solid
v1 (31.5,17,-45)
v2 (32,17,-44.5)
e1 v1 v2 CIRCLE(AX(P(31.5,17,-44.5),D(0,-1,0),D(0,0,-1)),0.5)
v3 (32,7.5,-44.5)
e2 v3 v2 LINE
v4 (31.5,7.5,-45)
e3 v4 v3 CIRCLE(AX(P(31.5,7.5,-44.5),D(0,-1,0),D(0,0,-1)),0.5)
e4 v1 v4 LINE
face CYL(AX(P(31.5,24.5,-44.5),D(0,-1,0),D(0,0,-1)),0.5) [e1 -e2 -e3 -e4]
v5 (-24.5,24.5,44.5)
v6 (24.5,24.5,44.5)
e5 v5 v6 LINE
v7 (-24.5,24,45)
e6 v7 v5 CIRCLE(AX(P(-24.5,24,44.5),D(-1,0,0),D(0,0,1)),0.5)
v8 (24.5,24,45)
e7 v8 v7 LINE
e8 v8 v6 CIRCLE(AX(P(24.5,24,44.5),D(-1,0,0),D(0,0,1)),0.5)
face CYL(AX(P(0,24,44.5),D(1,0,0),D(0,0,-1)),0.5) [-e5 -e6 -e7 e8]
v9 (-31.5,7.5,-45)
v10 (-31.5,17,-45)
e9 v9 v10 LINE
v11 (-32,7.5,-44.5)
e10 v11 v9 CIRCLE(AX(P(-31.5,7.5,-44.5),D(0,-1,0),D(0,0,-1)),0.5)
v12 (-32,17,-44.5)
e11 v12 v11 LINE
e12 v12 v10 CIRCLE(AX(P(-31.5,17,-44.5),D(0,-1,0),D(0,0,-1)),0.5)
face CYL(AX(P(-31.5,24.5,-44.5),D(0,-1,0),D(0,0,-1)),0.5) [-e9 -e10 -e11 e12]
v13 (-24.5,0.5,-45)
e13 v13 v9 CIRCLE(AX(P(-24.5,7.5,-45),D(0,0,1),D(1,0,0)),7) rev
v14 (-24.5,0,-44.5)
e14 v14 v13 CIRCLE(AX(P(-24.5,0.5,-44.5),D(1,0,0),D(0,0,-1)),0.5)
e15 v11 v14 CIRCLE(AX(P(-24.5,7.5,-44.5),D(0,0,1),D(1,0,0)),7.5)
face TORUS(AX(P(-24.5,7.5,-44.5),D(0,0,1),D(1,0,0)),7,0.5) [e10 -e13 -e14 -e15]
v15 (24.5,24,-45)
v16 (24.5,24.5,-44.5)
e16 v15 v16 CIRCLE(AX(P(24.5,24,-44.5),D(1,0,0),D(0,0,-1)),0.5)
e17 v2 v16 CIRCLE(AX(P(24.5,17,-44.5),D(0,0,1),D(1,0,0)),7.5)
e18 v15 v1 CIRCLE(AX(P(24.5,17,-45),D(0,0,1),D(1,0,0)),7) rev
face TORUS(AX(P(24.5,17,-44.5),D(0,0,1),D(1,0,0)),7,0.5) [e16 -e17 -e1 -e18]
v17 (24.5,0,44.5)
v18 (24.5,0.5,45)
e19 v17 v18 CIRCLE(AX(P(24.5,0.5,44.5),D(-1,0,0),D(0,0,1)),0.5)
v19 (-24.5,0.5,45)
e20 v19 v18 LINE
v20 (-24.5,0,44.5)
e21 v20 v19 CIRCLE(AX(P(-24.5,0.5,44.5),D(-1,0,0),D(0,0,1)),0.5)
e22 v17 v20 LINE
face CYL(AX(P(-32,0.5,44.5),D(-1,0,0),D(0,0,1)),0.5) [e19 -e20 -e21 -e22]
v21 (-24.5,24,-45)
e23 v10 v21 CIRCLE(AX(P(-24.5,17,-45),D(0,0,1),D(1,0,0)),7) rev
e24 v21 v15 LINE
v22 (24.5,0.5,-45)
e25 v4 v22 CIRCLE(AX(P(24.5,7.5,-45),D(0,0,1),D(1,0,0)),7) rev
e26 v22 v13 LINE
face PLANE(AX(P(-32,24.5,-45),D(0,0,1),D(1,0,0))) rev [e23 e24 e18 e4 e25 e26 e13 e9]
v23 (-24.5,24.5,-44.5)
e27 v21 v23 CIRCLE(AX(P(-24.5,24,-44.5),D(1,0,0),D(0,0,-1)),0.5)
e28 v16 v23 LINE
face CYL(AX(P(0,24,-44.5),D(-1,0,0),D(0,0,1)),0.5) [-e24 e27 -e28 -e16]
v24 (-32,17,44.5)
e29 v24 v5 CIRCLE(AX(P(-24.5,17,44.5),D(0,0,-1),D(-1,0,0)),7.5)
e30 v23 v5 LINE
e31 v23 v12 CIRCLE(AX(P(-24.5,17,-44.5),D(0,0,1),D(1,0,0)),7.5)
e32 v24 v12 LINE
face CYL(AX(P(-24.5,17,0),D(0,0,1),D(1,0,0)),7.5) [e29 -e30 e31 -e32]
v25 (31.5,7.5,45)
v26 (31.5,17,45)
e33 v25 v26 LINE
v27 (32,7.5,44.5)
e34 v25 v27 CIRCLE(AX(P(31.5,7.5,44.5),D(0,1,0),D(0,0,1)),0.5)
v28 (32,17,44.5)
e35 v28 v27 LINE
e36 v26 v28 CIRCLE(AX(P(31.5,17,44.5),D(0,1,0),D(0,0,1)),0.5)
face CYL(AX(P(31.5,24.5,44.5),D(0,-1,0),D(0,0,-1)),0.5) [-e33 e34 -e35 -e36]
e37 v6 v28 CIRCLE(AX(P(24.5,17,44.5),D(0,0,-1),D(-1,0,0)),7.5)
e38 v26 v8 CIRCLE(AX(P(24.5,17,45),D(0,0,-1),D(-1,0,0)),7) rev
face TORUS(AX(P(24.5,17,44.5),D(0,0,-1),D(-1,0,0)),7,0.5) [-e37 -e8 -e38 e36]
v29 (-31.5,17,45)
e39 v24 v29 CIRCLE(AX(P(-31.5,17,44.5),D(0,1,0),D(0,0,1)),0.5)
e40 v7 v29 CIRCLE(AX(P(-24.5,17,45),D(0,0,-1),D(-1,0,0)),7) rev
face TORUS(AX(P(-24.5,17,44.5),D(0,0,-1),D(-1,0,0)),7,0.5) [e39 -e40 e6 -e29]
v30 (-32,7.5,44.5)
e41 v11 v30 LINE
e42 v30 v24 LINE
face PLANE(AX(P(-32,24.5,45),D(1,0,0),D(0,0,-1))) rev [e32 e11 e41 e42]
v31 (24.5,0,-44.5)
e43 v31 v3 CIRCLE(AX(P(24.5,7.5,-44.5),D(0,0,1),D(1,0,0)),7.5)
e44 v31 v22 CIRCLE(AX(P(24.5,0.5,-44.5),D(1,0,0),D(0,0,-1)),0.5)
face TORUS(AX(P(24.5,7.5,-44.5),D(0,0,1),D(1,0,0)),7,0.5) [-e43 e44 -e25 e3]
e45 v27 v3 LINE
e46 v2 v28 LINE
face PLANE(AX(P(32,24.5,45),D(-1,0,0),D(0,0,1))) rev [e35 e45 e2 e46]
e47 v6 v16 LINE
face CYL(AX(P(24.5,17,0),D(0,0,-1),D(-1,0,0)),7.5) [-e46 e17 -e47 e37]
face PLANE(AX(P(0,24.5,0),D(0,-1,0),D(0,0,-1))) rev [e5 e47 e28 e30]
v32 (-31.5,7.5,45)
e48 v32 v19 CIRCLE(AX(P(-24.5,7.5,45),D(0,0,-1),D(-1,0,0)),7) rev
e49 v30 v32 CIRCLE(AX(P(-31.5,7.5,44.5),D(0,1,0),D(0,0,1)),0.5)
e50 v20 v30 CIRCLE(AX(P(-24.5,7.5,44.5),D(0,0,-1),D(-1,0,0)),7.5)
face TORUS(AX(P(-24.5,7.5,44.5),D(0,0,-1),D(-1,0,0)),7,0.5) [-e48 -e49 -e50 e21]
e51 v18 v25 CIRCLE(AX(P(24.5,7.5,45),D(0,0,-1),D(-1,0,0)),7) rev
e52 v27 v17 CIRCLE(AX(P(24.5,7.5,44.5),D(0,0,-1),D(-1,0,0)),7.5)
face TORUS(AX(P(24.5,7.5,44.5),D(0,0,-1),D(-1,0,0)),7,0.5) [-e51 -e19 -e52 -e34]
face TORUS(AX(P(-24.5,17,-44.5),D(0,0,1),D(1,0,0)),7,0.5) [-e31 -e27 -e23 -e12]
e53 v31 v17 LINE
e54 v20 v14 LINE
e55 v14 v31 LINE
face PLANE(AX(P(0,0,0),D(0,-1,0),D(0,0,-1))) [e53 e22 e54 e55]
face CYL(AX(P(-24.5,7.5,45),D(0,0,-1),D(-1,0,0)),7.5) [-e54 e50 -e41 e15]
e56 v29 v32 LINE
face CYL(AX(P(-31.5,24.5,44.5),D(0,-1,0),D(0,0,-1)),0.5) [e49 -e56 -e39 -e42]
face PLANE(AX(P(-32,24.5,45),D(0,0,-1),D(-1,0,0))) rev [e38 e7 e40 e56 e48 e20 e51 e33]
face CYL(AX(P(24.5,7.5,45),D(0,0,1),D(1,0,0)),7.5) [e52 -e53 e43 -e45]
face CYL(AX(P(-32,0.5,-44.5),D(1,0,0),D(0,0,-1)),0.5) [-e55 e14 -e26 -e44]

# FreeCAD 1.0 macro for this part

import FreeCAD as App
import Part
import Sketcher

V = App.Vector
Q = App.Units.Quantity


def edges_at(feature, points):
    """Names of the edges that pass closest to the given points."""
    edges = feature.Shape.Edges
    near = lambda p: min(range(len(edges)), key=lambda i: edges[i].distToShape(Part.Vertex(*p))[0])
    return sorted({f"Edge{near(p) + 1}" for p in points})

doc = App.newDocument("Part")
body = doc.addObject("PartDesign::Body", "Body")

# Sketch on XZ plane
sketch1 = body.newObject("Sketcher::SketchObject", "Sketch")
sketch1.AttachmentSupport = (doc.getObject("XZ_Plane"), [""])
sketch1.MapMode = "FlatFace"
sketch1.addGeometry(Part.LineSegment(V(-32, -45, 0), V(-32, 45, 0)), False)
sketch1.addGeometry(Part.LineSegment(V(-32, 45, 0), V(32, 45, 0)), False)
sketch1.addGeometry(Part.LineSegment(V(32, 45, 0), V(32, -45, 0)), False)
sketch1.addGeometry(Part.LineSegment(V(32, -45, 0), V(-32, -45, 0)), False)
sketch1.addConstraint(Sketcher.Constraint("Coincident", 0, 2, 1, 1))
sketch1.addConstraint(Sketcher.Constraint("Coincident", 1, 2, 2, 1))
sketch1.addConstraint(Sketcher.Constraint("Coincident", 2, 2, 3, 1))
sketch1.addConstraint(Sketcher.Constraint("Coincident", 3, 2, 0, 1))
sketch1.addConstraint(Sketcher.Constraint("Vertical", 0))
sketch1.addConstraint(Sketcher.Constraint("Horizontal", 1))
sketch1.addConstraint(Sketcher.Constraint("Vertical", 2))
sketch1.addConstraint(Sketcher.Constraint("Horizontal", 3))
sketch1.addConstraint(Sketcher.Constraint("Symmetric", 0, 2, 2, 2, -1, 1))
sketch1.addConstraint(Sketcher.Constraint("DistanceX", 1, 1, 1, 2, Q("64 mm")))
sketch1.addConstraint(Sketcher.Constraint("DistanceY", 0, 1, 0, 2, Q("90 mm")))
pad1 = body.newObject("PartDesign::Pad", "Pad")
pad1.Profile = sketch1
pad1.Length = 24.5
pad1.Reversed = True
doc.recompute()

fillet = body.newObject("PartDesign::Fillet", "Fillet")
fillet.Base = (pad1, edges_at(pad1, [
    (-32, 24.5, 0),
    (32, 24.5, 0),
    (-32, 0, 0),
    (32, 0, 0),
]))
fillet.Radius = 7.5
doc.recompute()

fillet2 = body.newObject("PartDesign::Fillet", "Fillet001")
fillet2.Base = (fillet, edges_at(fillet, [
    (-32, 12.25, 45),
    (-32, 12.25, -45),
    (0, 0, 45),
    (32, 12.25, 45),
    (0, 24.5, 45),
    (29.803, 22.303, 45),
    (29.803, 2.197, 45),
    (-29.803, 22.303, 45),
    (-29.803, 2.197, 45),
    (0, 0, -45),
    (0, 24.5, -45),
    (32, 12.25, -45),
    (29.803, 22.303, -45),
    (29.803, 2.197, -45),
    (-29.803, 22.303, -45),
    (-29.803, 2.197, -45),
]))
fillet2.Radius = 0.5

doc.recompute()
